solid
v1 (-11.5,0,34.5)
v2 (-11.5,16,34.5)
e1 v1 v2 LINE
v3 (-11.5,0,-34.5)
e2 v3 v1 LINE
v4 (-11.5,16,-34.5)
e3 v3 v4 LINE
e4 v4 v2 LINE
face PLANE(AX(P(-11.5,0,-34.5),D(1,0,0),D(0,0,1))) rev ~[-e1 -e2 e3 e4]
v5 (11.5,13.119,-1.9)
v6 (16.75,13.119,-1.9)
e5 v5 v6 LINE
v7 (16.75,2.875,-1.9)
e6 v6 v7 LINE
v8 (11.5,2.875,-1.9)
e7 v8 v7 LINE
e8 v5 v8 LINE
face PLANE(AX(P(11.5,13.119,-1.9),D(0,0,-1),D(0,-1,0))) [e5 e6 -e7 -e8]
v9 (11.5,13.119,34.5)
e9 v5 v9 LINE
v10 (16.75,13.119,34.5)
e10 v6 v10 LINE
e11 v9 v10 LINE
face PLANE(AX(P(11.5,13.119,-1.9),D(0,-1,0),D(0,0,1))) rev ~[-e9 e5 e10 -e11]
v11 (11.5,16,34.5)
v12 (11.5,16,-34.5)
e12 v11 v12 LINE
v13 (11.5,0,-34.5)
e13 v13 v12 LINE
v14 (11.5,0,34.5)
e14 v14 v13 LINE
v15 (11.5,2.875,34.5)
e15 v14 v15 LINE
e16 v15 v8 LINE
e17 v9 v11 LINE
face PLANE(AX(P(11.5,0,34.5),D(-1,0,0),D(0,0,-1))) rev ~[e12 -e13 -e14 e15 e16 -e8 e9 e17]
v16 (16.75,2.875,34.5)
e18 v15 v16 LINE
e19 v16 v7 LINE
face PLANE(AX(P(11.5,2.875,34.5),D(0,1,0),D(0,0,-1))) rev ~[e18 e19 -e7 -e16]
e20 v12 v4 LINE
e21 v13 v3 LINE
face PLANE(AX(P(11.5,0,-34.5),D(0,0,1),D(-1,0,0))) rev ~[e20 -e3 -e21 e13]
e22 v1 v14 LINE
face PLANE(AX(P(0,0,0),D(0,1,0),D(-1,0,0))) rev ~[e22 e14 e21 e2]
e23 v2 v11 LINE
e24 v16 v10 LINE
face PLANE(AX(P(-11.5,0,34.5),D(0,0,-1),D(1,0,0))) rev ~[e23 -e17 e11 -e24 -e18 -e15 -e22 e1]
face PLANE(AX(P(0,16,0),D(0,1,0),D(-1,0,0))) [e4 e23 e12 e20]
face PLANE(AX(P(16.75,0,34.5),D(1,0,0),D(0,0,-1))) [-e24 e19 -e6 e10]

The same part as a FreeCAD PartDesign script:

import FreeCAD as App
import Part
import Sketcher
from FreeCAD import Vector


def add_polygon(sketch, points):
    """Adds a closed chain of lines whose ends are joined by coincident constraints."""
    first, n = sketch.GeometryCount, len(points)
    for a, b in zip(points, points[1:] + points[:1]):
        sketch.addGeometry(Part.LineSegment(App.Vector(*a, 0), App.Vector(*b, 0)), False)
    for i in range(n):
        sketch.addConstraint(Sketcher.Constraint("Coincident", first + i, 2, first + (i + 1) % n, 1))

doc = App.newDocument("Part")
body = doc.addObject("PartDesign::Body", "Body")

# Sketch on XZ plane
sketch1 = body.newObject("Sketcher::SketchObject", "Sketch")
sketch1.AttachmentSupport = (doc.getObject("XZ_Plane"), [""])
sketch1.MapMode = "FlatFace"
add_polygon(sketch1, [(-12, -34), (-12, 34), (12, 34), (12, -34)])  # lines 0-3
sketch1.addConstraint([
    Sketcher.Constraint("Vertical", 0),
    Sketcher.Constraint("Horizontal", 1),
    Sketcher.Constraint("Vertical", 2),
    Sketcher.Constraint("Horizontal", 3),
    Sketcher.Constraint("Symmetric", 0, 2, 2, 2, -1, 1),
    Sketcher.Constraint("DistanceX", 1, 1, 1, 2, 23.0),
    Sketcher.Constraint("DistanceY", 0, 1, 0, 2, 69.0),
])
pad1 = body.newObject("PartDesign::Pad", "Pad")
pad1.Profile = sketch1
pad1.Length = 16
pad1.Reversed = True

# Sketch on YZ plane
sketch2 = body.newObject("Sketcher::SketchObject", "Sketch001")
sketch2.AttachmentSupport = (doc.getObject("YZ_Plane"), [""])
sketch2.MapMode = "FlatFace"
sketch2.AttachmentOffset = App.Placement(Vector(0, 0, 11.5), App.Rotation())
add_polygon(sketch2, [(13, 34), (3, 34), (3, -2), (13, -2)])  # lines 0-3
sketch2.addConstraint([
    Sketcher.Constraint("Horizontal", 0),
    Sketcher.Constraint("Vertical", 1),
    Sketcher.Constraint("Horizontal", 2),
    Sketcher.Constraint("Vertical", 3),
    Sketcher.Constraint("DistanceY", 1, 2, 1, 1, 36.4),
    Sketcher.Constraint("DistanceY", -1, 1, 0, 2, 34.5),
    Sketcher.Constraint("DistanceX", 0, 2, 0, 1, 10.244),
    Sketcher.Constraint("DistanceX", -1, 1, 0, 2, 2.875),
])
pad2 = body.newObject("PartDesign::Pad", "Pad001")
pad2.Profile = sketch2
pad2.Length = 5.25

doc.recompute()
